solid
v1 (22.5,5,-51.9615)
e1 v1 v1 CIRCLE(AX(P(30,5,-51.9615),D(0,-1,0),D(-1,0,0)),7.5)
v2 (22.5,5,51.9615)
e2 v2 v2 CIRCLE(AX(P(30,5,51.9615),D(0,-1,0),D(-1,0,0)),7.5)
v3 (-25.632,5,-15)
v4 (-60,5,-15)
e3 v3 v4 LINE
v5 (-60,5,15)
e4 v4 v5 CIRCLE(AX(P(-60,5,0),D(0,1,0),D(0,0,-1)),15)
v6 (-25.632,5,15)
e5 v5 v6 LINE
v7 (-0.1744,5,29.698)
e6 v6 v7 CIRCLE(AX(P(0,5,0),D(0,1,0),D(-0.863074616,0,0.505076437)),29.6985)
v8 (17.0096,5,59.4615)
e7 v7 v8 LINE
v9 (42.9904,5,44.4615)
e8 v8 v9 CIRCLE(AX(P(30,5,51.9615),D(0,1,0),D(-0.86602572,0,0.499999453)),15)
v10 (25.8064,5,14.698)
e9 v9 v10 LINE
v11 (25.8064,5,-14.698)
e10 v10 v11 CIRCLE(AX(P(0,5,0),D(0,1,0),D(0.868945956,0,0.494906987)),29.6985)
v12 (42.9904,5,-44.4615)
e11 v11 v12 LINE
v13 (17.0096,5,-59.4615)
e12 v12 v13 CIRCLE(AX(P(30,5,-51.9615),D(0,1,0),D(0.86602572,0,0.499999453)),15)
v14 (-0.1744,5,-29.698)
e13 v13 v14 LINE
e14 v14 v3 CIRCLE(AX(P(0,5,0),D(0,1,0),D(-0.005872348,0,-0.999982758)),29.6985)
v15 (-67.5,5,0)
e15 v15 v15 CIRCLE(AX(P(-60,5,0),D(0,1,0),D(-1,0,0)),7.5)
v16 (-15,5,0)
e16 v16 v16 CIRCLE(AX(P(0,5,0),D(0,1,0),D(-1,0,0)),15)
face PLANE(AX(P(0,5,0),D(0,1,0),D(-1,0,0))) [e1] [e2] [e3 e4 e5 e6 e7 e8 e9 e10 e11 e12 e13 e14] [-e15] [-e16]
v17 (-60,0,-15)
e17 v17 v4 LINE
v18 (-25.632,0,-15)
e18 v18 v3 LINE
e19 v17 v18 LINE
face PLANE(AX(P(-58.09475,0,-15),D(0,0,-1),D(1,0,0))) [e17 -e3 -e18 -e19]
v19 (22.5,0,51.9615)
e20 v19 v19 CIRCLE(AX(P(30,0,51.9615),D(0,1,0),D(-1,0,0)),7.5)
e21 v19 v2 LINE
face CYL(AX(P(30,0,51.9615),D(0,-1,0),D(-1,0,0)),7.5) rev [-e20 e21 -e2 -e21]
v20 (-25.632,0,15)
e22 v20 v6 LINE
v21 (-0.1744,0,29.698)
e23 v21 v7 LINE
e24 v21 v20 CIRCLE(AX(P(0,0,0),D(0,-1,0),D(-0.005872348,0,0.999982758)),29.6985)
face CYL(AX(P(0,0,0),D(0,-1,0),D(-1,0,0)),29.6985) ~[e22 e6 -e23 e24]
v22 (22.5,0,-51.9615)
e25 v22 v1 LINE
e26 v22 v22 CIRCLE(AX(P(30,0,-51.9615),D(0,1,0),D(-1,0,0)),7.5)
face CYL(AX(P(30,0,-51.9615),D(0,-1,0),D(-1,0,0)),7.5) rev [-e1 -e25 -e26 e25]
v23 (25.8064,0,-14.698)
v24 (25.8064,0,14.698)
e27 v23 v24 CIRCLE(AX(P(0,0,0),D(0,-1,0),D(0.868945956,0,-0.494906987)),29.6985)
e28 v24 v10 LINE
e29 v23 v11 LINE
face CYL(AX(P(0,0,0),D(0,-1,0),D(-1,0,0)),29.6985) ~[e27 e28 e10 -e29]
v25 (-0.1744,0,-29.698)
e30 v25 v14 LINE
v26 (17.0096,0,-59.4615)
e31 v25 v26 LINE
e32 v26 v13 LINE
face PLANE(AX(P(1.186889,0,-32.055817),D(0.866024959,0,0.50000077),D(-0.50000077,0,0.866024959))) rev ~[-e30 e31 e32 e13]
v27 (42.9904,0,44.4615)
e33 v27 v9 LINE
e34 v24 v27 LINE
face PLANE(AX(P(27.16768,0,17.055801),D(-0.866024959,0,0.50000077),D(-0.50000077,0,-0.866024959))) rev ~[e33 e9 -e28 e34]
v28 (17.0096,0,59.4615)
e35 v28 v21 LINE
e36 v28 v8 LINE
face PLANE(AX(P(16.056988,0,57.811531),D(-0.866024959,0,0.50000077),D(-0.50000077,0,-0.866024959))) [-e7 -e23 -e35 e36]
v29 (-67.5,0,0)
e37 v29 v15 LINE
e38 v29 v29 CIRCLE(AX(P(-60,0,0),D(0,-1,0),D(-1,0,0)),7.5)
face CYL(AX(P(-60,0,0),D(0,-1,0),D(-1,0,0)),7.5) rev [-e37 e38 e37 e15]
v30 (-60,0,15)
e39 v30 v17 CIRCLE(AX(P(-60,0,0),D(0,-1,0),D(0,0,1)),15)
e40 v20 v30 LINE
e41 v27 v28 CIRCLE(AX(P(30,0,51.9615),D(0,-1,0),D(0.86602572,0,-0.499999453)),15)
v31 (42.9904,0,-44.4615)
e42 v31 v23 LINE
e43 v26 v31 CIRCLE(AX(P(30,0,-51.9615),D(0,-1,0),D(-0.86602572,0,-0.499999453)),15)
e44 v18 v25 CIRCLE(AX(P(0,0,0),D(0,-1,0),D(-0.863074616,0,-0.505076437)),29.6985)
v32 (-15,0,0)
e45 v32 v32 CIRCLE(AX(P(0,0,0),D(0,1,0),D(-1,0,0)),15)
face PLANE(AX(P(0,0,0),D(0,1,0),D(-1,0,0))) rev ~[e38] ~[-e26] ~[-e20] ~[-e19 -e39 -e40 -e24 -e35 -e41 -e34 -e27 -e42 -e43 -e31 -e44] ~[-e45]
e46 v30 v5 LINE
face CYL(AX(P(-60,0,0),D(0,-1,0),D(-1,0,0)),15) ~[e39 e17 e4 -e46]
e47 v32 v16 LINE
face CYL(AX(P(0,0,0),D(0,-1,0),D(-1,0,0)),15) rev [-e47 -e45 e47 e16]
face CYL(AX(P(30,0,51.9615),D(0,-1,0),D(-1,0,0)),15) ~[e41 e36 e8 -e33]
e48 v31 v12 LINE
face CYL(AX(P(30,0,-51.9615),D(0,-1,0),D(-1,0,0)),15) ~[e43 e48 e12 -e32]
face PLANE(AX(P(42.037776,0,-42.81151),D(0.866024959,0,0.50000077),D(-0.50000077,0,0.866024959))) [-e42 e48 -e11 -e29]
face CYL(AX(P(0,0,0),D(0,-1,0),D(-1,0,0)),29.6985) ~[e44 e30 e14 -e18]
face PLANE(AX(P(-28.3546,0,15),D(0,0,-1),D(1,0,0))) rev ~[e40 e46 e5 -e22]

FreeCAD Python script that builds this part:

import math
import FreeCAD as App
import Part
import Sketcher

V = App.Vector
Q = App.Units.Quantity

doc = App.newDocument("Part")
body = doc.addObject("PartDesign::Body", "Body")

sketch1 = body.newObject("Sketcher::SketchObject", "Sketch")
sketch1.AttachmentSupport = (doc.getObject("XZ_Plane"), [""])
sketch1.MapMode = "FlatFace"
sketch1.addGeometry([
    Part.LineSegment(V(-60, 15, 0), V(-26, 15, 0)),
    Part.ArcOfCircle(Part.Circle(V(0, 0, 0), V(0, 0, 1), 30), math.radians(90), math.radians(150)),
    Part.LineSegment(V(0, 30, 0), V(17, 59, 0)),
    Part.ArcOfCircle(Part.Circle(V(30, 52, 0), V(0, 0, 1), 15), math.radians(-30), math.radians(150)),
    Part.LineSegment(V(43, 44, 0), V(26, 15, 0)),
    Part.ArcOfCircle(Part.Circle(V(0, 0, 0), V(0, 0, 1), 30), math.radians(-30), math.radians(30)),
    Part.LineSegment(V(26, -15, 0), V(43, -44, 0)),
    Part.ArcOfCircle(Part.Circle(V(30, -52, 0), V(0, 0, 1), 15), math.radians(-150), math.radians(30)),
    Part.LineSegment(V(17, -59, 0), V(0, -30, 0)),
    Part.ArcOfCircle(Part.Circle(V(0, 0, 0), V(0, 0, 1), 30), math.radians(-150), math.radians(-90)),
    Part.LineSegment(V(-26, -15, 0), V(-60, -15, 0)),
    Part.ArcOfCircle(Part.Circle(V(-60, 0, 0), V(0, 0, 1), 15), math.radians(90), math.radians(270)),
    Part.Circle(V(-60, 0, 0), V(0, 0, 1), 8),
    Part.Circle(V(0, 0, 0), V(0, 0, 1), 15),
    Part.Circle(V(30, -52, 0), V(0, 0, 1), 8),
    Part.Circle(V(30, 52, 0), V(0, 0, 1), 8),
], False)
sketch1.addConstraint([
    Sketcher.Constraint("Coincident", 0, 2, 1, 2),
    Sketcher.Constraint("Coincident", 1, 1, 2, 1),
    Sketcher.Constraint("Tangent", 2, 2, 3, 2),
    Sketcher.Constraint("Tangent", 3, 1, 4, 1),
    Sketcher.Constraint("Coincident", 4, 2, 5, 2),
    Sketcher.Constraint("Coincident", 5, 1, 6, 1),
    Sketcher.Constraint("Tangent", 6, 2, 7, 2),
    Sketcher.Constraint("Tangent", 7, 1, 8, 1),
    Sketcher.Constraint("Coincident", 8, 2, 9, 2),
    Sketcher.Constraint("Coincident", 9, 1, 10, 1),
    Sketcher.Constraint("Tangent", 10, 2, 11, 2),
    Sketcher.Constraint("Tangent", 11, 1, 0, 1),
    Sketcher.Constraint("Horizontal", 0),
    Sketcher.Constraint("Horizontal", 10),
    Sketcher.Constraint("Coincident", 1, 3, -1, 1),
    Sketcher.Constraint("Coincident", 5, 3, -1, 1),
    Sketcher.Constraint("Coincident", 9, 3, -1, 1),
    Sketcher.Constraint("Coincident", 13, 3, -1, 1),
    Sketcher.Constraint("Coincident", 12, 3, 11, 3),
    Sketcher.Constraint("Coincident", 14, 3, 7, 3),
    Sketcher.Constraint("Coincident", 15, 3, 3, 3),
    Sketcher.Constraint("Equal", 1, 5),
    Sketcher.Constraint("Equal", 3, 7),
    Sketcher.Constraint("Equal", 5, 9),
    Sketcher.Constraint("Equal", 7, 11),
    Sketcher.Constraint("Equal", 11, 13),
    Sketcher.Constraint("Equal", 12, 14),
    Sketcher.Constraint("Equal", 14, 15),
    Sketcher.Constraint("Symmetric", 3, 3, 7, 3, -1),
    Sketcher.Constraint("PointOnObject", 11, 3, -1),
    Sketcher.Constraint("Parallel", 2, 4),
    Sketcher.Constraint("Parallel", 6, 8),
    Sketcher.Constraint("Vertical", 4, 2, 5, 1),
    Sketcher.Constraint("Equal", 2, 4),
    Sketcher.Constraint("Diameter", 12, Q("15 mm")),
    Sketcher.Constraint("Diameter", 13, Q("30 mm")),
    Sketcher.Constraint("Angle", 4, Q("-120 deg")),
    Sketcher.Constraint("DistanceX", -1, 1, 3, 3, Q("30 mm")),
    Sketcher.Constraint("DistanceX", 11, 3, -1, 1, Q("60 mm")),
    Sketcher.Constraint("Radius", 1, Q("29.6985 mm")),
])
pad1 = body.newObject("PartDesign::Pad", "Pad")
pad1.Profile = sketch1
pad1.Length = 5
pad1.Reversed = True

doc.recompute()
